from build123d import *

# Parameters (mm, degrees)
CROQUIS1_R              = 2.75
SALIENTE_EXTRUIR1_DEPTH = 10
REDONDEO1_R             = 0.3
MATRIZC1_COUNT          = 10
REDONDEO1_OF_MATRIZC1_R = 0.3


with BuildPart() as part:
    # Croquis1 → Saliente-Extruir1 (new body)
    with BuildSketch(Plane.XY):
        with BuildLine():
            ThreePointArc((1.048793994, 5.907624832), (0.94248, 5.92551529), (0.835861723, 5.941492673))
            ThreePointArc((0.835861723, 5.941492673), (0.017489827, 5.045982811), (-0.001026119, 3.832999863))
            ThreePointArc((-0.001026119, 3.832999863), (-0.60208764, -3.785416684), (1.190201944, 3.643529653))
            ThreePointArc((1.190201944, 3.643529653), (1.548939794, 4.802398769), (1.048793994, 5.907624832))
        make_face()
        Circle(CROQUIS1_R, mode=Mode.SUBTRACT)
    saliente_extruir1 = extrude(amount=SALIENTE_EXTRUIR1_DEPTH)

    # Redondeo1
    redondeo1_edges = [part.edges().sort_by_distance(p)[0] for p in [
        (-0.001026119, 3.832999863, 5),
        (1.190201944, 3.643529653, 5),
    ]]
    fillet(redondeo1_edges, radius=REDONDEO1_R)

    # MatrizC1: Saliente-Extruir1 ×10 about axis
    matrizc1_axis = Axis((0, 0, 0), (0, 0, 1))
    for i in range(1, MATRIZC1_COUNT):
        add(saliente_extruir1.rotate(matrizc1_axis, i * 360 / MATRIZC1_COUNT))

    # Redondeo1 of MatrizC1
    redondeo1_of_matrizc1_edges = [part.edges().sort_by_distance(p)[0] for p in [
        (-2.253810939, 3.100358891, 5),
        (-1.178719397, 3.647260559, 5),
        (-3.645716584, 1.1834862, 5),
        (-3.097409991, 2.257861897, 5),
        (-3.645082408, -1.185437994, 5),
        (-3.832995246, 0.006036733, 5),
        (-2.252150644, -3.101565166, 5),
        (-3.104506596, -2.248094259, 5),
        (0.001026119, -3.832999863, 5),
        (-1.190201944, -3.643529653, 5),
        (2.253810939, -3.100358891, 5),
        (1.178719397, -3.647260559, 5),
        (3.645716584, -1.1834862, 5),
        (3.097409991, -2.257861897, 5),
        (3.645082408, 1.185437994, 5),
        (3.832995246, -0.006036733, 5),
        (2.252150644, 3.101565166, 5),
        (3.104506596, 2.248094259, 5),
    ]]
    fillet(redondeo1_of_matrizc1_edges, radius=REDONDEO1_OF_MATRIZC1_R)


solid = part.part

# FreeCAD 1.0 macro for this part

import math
import FreeCAD as App
import Part
import Sketcher


def edges_at(feature, points):
    """Names of the edges that pass closest to the given points."""
    edges = feature.Shape.Edges
    near = lambda p: min(range(len(edges)), key=lambda i: edges[i].distToShape(Part.Vertex(*p))[0])
    return sorted({f"Edge{near(p) + 1}" for p in points})

doc = App.newDocument("Part")
body = doc.addObject("PartDesign::Body", "Body")

# Sketch on XY plane
sketch1 = doc.addObject("Sketcher::SketchObject", "Sketch")
body.addObject(sketch1)
sketch1.AttachmentSupport = (doc.XY_Plane, [""])
sketch1.MapMode = "FlatFace"
sketch1.addGeometry([
    Part.ArcOfCircle(Part.Circle(App.Vector(0, 0, 0), App.Vector(0, 0, 1), 6), math.radians(79.93), math.radians(81.99)),  # 0
    Part.ArcOfCircle(Part.Circle(App.Vector(1.61, 4.42, 0), App.Vector(0, 0, 1), 1.71), math.radians(117), math.radians(200)),  # 1
    Part.ArcOfCircle(Part.Circle(App.Vector(0, 0, 0), App.Vector(0, 0, 1), 3.83), math.radians(90), math.radians(432)),  # 2
    Part.ArcOfCircle(Part.Circle(App.Vector(-0.16, 4.7, 0), App.Vector(0, 0, 1), 1.71), math.radians(-38), math.radians(45)),  # 3
    Part.Circle(App.Vector(0, 0, 0), App.Vector(0, 0, 1), 2.75),  # 4
], False)
sketch1.addConstraint([
    Sketcher.Constraint("Coincident", 0, 2, 1, 1),
    Sketcher.Constraint("Coincident", 1, 2, 2, 1),
    Sketcher.Constraint("Coincident", 2, 2, 3, 1),
    Sketcher.Constraint("Coincident", 3, 2, 0, 1),
    Sketcher.Constraint("Coincident", 0, 3, -1, 1),
    Sketcher.Constraint("Coincident", 2, 3, -1, 1),
    Sketcher.Constraint("Coincident", 4, 3, -1, 1),
    Sketcher.Constraint("Equal", 1, 3),
    Sketcher.Constraint("Radius", 0, 5.999999),
    Sketcher.Constraint("Diameter", 4, 5.5),
    Sketcher.Constraint("Radius", 2, 3.833),
    Sketcher.Constraint("DistanceX", -1, 1, 1, 3, 1.606998),
    Sketcher.Constraint("Radius", 1, 1.710137),
    Sketcher.Constraint("DistanceX", -1, 1, 2, 2, 1.190202),
    Sketcher.Constraint("DistanceX", 3, 3, -1, 1, 0.157871),
    Sketcher.Constraint("DistanceX", -1, 1, 0, 2, 0.835862),
])
pad1 = doc.addObject("PartDesign::Pad", "Pad")
body.addObject(pad1)
pad1.Profile = sketch1
pad1.Length = 10
doc.recompute()

fillet = doc.addObject("PartDesign::Fillet", "Fillet")
body.addObject(fillet)
fillet.Base = (pad1, edges_at(pad1, [(-0.001, 3.833, 5), (1.19, 3.644, 5)]))
fillet.Radius = 0.3
doc.recompute()

polarpattern = doc.addObject("PartDesign::PolarPattern", "PolarPattern")
body.addObject(polarpattern)
polarpattern.Originals = [pad1]
polarpattern.Axis = (doc.Z_Axis, [""])
polarpattern.Angle = 360
polarpattern.Occurrences = 10
body.Tip = polarpattern
doc.recompute()

fillet2 = doc.addObject("PartDesign::Fillet", "Fillet001")
body.addObject(fillet2)
fillet2.Base = (polarpattern, edges_at(polarpattern, [
    (-2.254, 3.1, 5),
    (-1.179, 3.647, 5),
    (-3.646, 1.183, 5),
    (-3.097, 2.258, 5),
    (-3.645, -1.185, 5),
    (-3.833, 0.006, 5),
    (-2.252, -3.102, 5),
    (-3.105, -2.248, 5),
    (0.001, -3.833, 5),
    (-1.19, -3.644, 5),
    (2.254, -3.1, 5),
    (1.179, -3.647, 5),
    (3.646, -1.183, 5),
    (3.097, -2.258, 5),
    (3.645, 1.185, 5),
    (3.833, -0.006, 5),
    (2.252, 3.102, 5),
    (3.105, 2.248, 5),
]))
fillet2.Radius = 0.3

doc.recompute()
